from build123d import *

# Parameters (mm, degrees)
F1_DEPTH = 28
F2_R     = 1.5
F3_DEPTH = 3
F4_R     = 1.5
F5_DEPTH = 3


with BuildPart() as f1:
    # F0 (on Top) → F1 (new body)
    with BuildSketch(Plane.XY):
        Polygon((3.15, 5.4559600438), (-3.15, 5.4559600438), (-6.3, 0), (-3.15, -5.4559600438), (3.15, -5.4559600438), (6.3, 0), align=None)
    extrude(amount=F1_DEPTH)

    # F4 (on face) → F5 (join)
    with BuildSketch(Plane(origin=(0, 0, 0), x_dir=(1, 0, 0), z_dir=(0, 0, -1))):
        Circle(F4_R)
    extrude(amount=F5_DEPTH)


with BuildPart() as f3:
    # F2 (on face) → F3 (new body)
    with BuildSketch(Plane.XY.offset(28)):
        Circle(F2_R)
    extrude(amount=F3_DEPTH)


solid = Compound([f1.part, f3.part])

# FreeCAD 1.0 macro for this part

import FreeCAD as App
import Part
import Sketcher
Q = App.Units.Quantity


def add_polygon(sketch, points):
    """Adds a closed chain of lines whose ends are joined by coincident constraints."""
    first, n = sketch.GeometryCount, len(points)
    for a, b in zip(points, points[1:] + points[:1]):
        sketch.addGeometry(Part.LineSegment(App.Vector(*a, 0), App.Vector(*b, 0)), False)
    for i in range(n):
        sketch.addConstraint(Sketcher.Constraint("Coincident", first + i, 2, first + (i + 1) % n, 1))

doc = App.newDocument("Part")
body = doc.addObject("PartDesign::Body", "Body")

sketch1 = body.newObject("Sketcher::SketchObject", "Sketch")
sketch1.AttachmentSupport = (doc.getObject("XY_Plane"), [""])
sketch1.MapMode = "FlatFace"
add_polygon(sketch1, [(3, 5), (-3, 5), (-6, 0), (-3, -5), (3, -5), (6, 0)])
sketch1.addConstraint([
    Sketcher.Constraint("Horizontal", 0),
    Sketcher.Constraint("Horizontal", 3),
    Sketcher.Constraint("Symmetric", 0, 2, 3, 2, -1, 1),
    Sketcher.Constraint("Symmetric", 1, 2, 4, 2, -1, 1),
    Sketcher.Constraint("PointOnObject", 1, 2, -1),
    Sketcher.Constraint("Parallel", 2, 5),
    Sketcher.Constraint("Vertical", 0, 2, 2, 2),
    Sketcher.Constraint("Angle", 1, Q("-120 deg")),
    Sketcher.Constraint("DistanceX", 0, 2, 0, 1, 6.3),
    Sketcher.Constraint("Distance", 1, 6.3),
])
pad1 = body.newObject("PartDesign::Pad", "Pad")
pad1.Profile = sketch1
pad1.Length = 28

sketch2 = body.newObject("Sketcher::SketchObject", "Sketch001")
sketch2.AttachmentSupport = (doc.getObject("XY_Plane"), [""])
sketch2.MapMode = "FlatFace"
sketch2.addGeometry(Part.Circle(App.Vector(0, 0, 0), App.Vector(0, 0, 1), 1.5), False)
sketch2.addConstraint([
    Sketcher.Constraint("Coincident", 0, 3, -1, 1),
    Sketcher.Constraint("Diameter", 0, 3.0),
])
pad2 = body.newObject("PartDesign::Pad", "Pad001")
pad2.Profile = sketch2
pad2.Length = 3
pad2.Reversed = True
body2 = doc.addObject("PartDesign::Body", "Body001")

sketch3 = body2.newObject("Sketcher::SketchObject", "Sketch002")
sketch3.AttachmentSupport = (doc.getObject("XY_Plane001"), [""])
sketch3.MapMode = "FlatFace"
sketch3.AttachmentOffset = App.Placement(App.Vector(0, 0, 28), App.Rotation())
sketch3.addGeometry(Part.Circle(App.Vector(0, 0, 0), App.Vector(0, 0, 1), 1.5), False)
sketch3.addConstraint([
    Sketcher.Constraint("Coincident", 0, 3, -1, 1),
    Sketcher.Constraint("Diameter", 0, 3.0),
])
pad3 = body2.newObject("PartDesign::Pad", "Pad002")
pad3.Profile = sketch3
pad3.Length = 3

doc.recompute()
